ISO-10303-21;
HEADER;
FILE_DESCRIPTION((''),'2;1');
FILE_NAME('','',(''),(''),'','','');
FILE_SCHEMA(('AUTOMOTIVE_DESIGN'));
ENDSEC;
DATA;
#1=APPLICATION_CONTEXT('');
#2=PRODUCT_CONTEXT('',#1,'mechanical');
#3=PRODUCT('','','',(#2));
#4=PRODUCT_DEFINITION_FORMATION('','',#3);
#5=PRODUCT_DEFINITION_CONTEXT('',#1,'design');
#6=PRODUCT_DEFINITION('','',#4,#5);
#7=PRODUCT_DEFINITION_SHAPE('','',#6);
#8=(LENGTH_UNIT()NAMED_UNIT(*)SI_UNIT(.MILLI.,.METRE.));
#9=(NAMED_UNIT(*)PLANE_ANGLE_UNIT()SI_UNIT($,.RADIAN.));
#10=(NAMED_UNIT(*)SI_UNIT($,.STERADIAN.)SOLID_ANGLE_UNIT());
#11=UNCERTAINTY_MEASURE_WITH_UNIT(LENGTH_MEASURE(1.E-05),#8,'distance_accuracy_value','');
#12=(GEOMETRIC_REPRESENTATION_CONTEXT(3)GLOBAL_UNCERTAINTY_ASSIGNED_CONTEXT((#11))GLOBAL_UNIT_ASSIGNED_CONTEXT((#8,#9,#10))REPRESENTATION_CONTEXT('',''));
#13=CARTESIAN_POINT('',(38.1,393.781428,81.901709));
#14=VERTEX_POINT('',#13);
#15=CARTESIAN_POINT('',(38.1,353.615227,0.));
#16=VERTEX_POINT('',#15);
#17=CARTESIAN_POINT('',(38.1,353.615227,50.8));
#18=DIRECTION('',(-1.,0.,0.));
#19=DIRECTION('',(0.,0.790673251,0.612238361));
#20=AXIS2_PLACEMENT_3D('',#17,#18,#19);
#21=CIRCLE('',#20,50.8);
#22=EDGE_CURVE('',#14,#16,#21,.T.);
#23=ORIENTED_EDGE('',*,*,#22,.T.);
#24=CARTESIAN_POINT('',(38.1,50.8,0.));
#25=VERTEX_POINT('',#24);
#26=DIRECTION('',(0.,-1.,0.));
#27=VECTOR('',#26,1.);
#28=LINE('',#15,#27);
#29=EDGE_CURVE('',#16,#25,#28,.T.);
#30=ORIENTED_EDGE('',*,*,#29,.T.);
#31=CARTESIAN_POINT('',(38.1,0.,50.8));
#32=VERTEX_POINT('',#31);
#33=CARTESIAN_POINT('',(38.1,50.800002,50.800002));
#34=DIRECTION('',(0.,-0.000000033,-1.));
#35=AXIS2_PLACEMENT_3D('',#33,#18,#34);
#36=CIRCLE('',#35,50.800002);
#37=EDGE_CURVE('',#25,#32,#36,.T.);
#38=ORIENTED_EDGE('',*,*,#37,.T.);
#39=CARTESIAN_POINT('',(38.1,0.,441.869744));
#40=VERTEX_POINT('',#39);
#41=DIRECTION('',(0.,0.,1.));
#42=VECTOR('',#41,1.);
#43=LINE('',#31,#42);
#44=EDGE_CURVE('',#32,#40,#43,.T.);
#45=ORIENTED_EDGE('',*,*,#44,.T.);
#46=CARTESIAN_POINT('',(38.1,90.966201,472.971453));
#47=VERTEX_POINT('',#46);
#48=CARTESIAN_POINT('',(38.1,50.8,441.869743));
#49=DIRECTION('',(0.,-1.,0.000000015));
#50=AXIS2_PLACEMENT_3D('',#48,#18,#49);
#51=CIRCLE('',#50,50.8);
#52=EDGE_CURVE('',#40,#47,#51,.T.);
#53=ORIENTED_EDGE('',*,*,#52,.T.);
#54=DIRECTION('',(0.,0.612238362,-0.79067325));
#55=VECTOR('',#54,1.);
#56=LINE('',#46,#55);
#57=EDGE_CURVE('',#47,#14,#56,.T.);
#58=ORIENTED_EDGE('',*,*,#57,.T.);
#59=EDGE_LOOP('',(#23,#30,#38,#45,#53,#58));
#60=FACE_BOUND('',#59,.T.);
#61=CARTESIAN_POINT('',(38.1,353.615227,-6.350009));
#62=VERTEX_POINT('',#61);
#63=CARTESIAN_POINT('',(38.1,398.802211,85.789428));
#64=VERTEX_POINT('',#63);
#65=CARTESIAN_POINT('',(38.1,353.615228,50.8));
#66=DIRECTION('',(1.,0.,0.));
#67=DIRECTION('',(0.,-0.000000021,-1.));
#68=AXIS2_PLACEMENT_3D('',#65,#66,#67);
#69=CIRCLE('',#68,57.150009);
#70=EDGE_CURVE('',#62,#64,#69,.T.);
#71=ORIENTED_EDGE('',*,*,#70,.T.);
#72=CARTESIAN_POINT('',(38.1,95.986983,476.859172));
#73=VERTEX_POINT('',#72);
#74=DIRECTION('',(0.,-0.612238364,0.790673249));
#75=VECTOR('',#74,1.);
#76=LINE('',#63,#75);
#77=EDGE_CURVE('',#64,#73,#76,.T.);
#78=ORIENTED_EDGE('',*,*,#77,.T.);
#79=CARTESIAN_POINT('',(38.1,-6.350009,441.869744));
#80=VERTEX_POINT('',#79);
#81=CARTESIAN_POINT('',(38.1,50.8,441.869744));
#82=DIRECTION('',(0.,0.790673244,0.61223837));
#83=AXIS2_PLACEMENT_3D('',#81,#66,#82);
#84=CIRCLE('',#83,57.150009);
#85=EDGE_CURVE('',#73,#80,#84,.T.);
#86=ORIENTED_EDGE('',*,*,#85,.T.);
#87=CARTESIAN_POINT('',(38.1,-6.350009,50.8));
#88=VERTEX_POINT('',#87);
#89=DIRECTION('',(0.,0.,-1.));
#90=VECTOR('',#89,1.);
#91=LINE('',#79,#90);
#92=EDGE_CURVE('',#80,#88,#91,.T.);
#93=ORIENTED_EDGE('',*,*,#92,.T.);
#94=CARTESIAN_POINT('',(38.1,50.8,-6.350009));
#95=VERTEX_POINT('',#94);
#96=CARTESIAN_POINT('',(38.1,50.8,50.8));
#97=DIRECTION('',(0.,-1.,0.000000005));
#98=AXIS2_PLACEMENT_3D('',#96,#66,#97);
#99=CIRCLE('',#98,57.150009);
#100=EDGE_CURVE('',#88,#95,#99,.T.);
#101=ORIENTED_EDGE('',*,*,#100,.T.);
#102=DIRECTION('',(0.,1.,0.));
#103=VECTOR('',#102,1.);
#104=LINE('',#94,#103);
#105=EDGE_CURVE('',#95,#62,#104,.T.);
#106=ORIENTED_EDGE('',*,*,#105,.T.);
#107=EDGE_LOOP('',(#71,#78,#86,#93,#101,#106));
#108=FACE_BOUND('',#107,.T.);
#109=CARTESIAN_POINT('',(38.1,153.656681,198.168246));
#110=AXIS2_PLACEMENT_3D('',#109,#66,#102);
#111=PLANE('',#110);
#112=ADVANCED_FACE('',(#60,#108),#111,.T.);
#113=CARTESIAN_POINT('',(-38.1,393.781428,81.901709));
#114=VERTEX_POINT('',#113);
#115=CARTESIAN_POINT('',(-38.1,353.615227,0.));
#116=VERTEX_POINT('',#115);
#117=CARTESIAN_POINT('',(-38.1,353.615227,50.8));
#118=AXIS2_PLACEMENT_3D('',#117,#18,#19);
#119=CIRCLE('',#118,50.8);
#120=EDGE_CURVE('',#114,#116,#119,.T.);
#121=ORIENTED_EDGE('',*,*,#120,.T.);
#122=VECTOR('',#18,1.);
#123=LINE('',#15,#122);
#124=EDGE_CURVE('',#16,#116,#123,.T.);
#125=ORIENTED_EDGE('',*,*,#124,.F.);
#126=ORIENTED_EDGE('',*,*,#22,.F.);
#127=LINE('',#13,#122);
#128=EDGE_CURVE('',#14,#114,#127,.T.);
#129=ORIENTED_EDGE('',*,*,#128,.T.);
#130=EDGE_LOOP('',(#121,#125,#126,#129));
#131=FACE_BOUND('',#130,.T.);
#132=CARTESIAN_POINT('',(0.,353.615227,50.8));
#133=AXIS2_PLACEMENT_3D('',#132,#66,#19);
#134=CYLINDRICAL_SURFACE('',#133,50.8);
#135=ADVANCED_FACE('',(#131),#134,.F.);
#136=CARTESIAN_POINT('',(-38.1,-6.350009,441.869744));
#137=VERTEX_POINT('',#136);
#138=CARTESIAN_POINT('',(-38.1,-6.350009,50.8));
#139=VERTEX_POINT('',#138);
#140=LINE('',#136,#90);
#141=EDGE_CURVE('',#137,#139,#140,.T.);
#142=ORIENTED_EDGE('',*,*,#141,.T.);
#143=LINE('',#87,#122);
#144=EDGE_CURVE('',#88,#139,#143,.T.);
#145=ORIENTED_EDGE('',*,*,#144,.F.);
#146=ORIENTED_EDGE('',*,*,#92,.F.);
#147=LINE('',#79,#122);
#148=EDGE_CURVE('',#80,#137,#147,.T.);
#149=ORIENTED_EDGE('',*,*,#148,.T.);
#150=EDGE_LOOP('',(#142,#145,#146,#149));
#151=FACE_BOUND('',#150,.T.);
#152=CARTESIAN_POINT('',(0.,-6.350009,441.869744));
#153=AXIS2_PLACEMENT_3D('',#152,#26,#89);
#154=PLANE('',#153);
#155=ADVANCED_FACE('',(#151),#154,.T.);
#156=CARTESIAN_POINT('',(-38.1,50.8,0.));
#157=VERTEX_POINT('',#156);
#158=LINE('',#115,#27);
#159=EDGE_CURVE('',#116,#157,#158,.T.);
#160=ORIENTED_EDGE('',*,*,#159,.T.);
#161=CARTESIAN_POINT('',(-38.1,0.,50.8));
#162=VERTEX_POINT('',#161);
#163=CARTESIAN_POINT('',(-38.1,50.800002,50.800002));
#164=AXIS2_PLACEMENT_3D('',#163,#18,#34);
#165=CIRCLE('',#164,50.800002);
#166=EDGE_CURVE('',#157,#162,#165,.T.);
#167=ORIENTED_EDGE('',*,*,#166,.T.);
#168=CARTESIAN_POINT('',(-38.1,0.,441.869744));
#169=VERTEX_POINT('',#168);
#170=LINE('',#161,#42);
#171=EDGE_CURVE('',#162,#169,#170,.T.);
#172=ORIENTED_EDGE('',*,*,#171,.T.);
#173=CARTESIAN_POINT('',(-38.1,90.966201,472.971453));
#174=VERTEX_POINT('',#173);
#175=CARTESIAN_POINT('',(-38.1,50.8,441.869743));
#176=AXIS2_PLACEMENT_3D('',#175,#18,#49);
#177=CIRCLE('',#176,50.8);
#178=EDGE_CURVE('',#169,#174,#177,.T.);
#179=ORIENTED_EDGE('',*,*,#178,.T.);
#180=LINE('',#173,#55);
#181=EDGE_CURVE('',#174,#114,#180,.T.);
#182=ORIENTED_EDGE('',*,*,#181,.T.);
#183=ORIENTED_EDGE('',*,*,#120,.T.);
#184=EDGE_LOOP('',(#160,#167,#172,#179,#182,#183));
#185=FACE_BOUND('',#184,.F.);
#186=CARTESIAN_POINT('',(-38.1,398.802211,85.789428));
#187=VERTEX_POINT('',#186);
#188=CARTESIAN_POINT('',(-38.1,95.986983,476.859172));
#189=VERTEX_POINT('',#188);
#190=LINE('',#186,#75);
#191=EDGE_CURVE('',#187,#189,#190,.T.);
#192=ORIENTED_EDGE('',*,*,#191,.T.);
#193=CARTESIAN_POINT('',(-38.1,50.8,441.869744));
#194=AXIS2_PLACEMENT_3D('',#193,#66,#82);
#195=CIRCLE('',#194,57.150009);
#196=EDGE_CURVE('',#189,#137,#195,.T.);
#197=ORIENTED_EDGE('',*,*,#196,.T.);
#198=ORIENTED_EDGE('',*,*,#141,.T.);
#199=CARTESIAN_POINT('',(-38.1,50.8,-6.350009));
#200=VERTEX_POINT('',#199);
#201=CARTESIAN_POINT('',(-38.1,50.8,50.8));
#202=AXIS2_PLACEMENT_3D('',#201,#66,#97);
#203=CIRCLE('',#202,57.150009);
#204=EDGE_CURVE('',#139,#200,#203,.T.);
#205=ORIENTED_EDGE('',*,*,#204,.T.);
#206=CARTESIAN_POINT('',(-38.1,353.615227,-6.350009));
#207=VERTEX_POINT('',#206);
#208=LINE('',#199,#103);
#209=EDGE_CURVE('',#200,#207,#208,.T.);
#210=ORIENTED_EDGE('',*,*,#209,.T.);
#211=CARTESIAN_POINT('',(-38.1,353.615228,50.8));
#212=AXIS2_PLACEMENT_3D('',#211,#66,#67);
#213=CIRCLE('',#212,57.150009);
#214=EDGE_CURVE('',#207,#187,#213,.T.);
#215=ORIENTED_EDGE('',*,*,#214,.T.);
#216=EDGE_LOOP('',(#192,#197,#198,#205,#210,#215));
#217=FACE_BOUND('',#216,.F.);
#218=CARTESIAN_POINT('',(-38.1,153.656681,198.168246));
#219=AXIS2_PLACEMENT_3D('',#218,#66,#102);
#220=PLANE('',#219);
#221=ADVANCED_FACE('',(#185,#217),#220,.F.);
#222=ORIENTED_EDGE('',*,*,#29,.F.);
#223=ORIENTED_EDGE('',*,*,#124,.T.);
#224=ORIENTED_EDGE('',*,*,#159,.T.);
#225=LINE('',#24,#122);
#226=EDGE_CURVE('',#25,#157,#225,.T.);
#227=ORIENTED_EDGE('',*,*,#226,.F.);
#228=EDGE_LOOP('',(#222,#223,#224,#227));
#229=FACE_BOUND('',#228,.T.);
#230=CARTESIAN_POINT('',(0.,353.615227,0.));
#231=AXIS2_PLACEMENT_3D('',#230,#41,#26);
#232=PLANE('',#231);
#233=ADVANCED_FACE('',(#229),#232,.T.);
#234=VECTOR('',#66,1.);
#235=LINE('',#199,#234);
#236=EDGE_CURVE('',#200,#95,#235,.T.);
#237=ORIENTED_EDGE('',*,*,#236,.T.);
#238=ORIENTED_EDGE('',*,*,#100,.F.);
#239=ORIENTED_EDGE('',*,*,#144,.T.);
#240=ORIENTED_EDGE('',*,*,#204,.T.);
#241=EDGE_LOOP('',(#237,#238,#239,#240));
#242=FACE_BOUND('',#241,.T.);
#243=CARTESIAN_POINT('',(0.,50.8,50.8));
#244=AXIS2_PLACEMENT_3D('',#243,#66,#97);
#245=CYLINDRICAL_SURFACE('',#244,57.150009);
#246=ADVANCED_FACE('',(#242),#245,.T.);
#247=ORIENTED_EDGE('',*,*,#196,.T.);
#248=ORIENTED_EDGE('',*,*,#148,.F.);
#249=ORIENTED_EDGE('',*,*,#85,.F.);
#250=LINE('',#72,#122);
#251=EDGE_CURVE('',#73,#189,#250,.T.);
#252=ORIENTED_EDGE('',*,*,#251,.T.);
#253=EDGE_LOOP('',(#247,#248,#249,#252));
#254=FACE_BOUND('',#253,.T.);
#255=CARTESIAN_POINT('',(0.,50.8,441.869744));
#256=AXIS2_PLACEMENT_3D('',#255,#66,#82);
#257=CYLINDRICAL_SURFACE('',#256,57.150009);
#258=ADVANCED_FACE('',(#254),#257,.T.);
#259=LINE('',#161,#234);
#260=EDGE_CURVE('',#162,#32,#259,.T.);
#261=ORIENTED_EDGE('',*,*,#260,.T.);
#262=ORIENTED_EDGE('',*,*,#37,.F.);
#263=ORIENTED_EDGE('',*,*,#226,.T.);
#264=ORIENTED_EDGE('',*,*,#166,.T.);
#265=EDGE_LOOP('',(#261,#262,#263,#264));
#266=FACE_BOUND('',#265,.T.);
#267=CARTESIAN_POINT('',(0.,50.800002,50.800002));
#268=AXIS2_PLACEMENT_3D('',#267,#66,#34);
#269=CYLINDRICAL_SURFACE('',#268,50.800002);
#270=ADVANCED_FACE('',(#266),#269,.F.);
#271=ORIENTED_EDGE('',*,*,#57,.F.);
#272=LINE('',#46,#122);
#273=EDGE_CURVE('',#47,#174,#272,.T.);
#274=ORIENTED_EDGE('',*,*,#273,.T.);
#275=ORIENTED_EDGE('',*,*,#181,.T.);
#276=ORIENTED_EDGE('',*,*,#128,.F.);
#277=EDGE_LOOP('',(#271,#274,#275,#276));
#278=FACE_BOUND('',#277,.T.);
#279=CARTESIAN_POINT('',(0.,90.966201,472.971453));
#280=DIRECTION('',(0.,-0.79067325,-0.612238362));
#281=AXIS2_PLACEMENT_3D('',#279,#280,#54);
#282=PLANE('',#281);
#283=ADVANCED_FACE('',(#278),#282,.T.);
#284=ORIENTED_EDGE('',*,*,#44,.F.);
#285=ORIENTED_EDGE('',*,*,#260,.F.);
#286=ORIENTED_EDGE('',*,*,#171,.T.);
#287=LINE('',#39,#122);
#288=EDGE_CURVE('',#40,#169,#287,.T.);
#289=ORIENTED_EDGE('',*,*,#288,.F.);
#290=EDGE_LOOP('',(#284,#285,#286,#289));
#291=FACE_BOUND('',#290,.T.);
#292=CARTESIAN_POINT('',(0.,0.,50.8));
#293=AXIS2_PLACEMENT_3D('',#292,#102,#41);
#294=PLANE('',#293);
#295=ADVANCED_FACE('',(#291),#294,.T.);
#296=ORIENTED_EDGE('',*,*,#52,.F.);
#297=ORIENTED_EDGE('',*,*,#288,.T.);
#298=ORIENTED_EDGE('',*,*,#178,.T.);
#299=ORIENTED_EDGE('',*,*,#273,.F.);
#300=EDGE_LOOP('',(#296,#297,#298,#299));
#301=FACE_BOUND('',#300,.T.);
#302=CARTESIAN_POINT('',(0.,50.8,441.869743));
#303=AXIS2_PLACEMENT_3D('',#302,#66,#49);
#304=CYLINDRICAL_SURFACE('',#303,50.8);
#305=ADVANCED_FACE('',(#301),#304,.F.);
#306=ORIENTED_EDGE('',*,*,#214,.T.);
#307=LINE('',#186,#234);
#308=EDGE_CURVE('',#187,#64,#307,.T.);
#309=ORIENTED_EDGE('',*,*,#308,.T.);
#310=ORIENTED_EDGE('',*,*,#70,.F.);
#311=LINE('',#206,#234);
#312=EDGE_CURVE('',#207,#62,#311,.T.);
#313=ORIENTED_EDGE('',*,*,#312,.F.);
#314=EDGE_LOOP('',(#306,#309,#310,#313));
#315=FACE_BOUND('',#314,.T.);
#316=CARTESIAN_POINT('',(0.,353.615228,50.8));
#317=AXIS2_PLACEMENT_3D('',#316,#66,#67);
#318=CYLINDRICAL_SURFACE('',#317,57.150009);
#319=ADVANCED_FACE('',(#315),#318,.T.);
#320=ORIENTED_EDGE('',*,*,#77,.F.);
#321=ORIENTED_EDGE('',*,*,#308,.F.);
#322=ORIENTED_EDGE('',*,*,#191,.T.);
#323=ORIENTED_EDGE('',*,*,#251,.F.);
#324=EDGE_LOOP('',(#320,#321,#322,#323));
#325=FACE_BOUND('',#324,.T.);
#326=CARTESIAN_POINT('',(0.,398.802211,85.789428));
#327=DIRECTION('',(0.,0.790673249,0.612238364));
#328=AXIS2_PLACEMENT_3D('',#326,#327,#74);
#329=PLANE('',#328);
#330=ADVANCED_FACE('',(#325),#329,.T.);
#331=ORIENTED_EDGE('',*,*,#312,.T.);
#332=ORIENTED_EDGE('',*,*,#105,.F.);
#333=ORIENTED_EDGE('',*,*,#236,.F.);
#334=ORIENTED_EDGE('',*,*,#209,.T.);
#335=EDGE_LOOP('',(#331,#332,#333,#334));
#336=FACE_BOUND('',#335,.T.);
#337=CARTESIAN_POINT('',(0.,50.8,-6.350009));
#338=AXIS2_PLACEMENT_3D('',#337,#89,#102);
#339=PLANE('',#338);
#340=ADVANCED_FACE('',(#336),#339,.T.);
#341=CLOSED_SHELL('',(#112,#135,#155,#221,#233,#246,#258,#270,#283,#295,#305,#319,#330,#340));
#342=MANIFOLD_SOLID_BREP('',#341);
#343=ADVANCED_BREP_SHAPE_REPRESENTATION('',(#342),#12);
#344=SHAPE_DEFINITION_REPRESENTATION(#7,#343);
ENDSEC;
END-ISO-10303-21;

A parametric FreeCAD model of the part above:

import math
import FreeCAD as App
import Part
import Sketcher
Q = App.Units.Quantity

doc = App.newDocument("Part")
body = doc.addObject("PartDesign::Body", "Body")

# Sketch on YZ plane
sketch1 = body.newObject("Sketcher::SketchObject", "Sketch")
sketch1.AttachmentSupport = (doc.getObject("YZ_Plane"), [""])
sketch1.MapMode = "FlatFace"
sketch1.addGeometry([
    Part.ArcOfCircle(Part.Circle(App.Vector(50.8, 50.8, 0), App.Vector(0, 0, 1), 57.150009), math.radians(180), math.radians(270)),  # 0
    Part.LineSegment(App.Vector(50.8, -6.350009, 0), App.Vector(353.615227, -6.350009, 0)),  # 1
    Part.ArcOfCircle(Part.Circle(App.Vector(353.615228, 50.8, 0), App.Vector(0, 0, 1), 57.150009), math.radians(-90.000001), math.radians(37.751528)),  # 2
    Part.LineSegment(App.Vector(398.802211, 85.789428, 0), App.Vector(95.986983, 476.859172, 0)),  # 3
    Part.ArcOfCircle(Part.Circle(App.Vector(50.8, 441.869744, 0), App.Vector(0, 0, 1), 57.150009), math.radians(37.751528), math.radians(180)),  # 4
    Part.LineSegment(App.Vector(-6.350009, 441.869744, 0), App.Vector(-6.350009, 50.8, 0)),  # 5
    Part.ArcOfCircle(Part.Circle(App.Vector(50.800002, 50.800002, 0), App.Vector(0, 0, 1), 50.800002), math.radians(-179.999998), math.radians(-90.000002)),  # 6
    Part.LineSegment(App.Vector(0, 50.8, 0), App.Vector(0, 441.869744, 0)),  # 7
    Part.ArcOfCircle(Part.Circle(App.Vector(50.8, 441.869743, 0), App.Vector(0, 0, 1), 50.8), math.radians(37.751529), math.radians(179.999999)),  # 8
    Part.LineSegment(App.Vector(90.966201, 472.971453, 0), App.Vector(393.781428, 81.901709, 0)),  # 9
    Part.ArcOfCircle(Part.Circle(App.Vector(353.615227, 50.8, 0), App.Vector(0, 0, 1), 50.8), math.radians(-90), math.radians(37.751528)),  # 10
    Part.LineSegment(App.Vector(353.615227, 0, 0), App.Vector(50.8, 0, 0)),  # 11
], False)
sketch1.addConstraint([
    Sketcher.Constraint("Coincident", 0, 2, 1, 1),
    Sketcher.Constraint("Coincident", 1, 2, 2, 1),
    Sketcher.Constraint("Coincident", 2, 2, 3, 1),
    Sketcher.Constraint("Coincident", 3, 2, 4, 1),
    Sketcher.Constraint("Coincident", 4, 2, 5, 1),
    Sketcher.Constraint("Coincident", 5, 2, 0, 1),
    Sketcher.Constraint("Coincident", 6, 1, 7, 1),
    Sketcher.Constraint("Coincident", 7, 2, 8, 2),
    Sketcher.Constraint("Coincident", 8, 1, 9, 1),
    Sketcher.Constraint("Coincident", 9, 2, 10, 2),
    Sketcher.Constraint("Coincident", 10, 1, 11, 1),
    Sketcher.Constraint("Coincident", 11, 2, 6, 2),
    Sketcher.Constraint("Horizontal", 1),
    Sketcher.Constraint("Vertical", 5),
    Sketcher.Constraint("Vertical", 7),
    Sketcher.Constraint("Horizontal", 11),
    Sketcher.Constraint("Coincident", 6, 3, 0, 3),
    Sketcher.Constraint("Coincident", 8, 3, 4, 3),
    Sketcher.Constraint("Coincident", 10, 3, 2, 3),
    Sketcher.Constraint("PointOnObject", 6, 1, -2),
    Sketcher.Constraint("PointOnObject", 10, 1, -1),
    Sketcher.Constraint("Radius", 6, Q("2.0000001 in")),
    Sketcher.Constraint("Radius", 8, Q("2 in")),
    Sketcher.Constraint("Radius", 10, Q("2 in")),
    Sketcher.Constraint("DistanceX", -1, 1, 0, 2, Q("2 in")),
    Sketcher.Constraint("DistanceY", -1, 1, 5, 2, Q("2 in")),
    Sketcher.Constraint("DistanceY", -1, 1, 6, 1, Q("2 in")),
    Sketcher.Constraint("DistanceX", -1, 1, 11, 2, Q("2 in")),
    Sketcher.Constraint("Radius", 0, 57.150009),
    Sketcher.Constraint("DistanceX", -1, 1, 8, 1, 90.966201),
    Sketcher.Constraint("DistanceX", 2, 3, 9, 2, 40.1662),
    Sketcher.Constraint("DistanceX", 1, 2, 9, 2, 40.166201),
    Sketcher.Constraint("DistanceX", 10, 1, 9, 2, 40.166201),
    Sketcher.Constraint("DistanceX", 1, 1, 1, 2, 302.815227),
    Sketcher.Constraint("DistanceY", 5, 2, 5, 1, 391.069744),
    Sketcher.Constraint("DistanceY", 7, 1, 7, 2, 391.069744),
    Sketcher.Constraint("DistanceX", -1, 1, 2, 2, 398.802211),
    Sketcher.Constraint("DistanceY", -1, 1, 3, 2, 476.859172),
    Sketcher.Constraint("DistanceY", 6, 3, 8, 3, 391.069742),
])
pad1 = body.newObject("PartDesign::Pad", "Pad")
pad1.Profile = sketch1
pad1.Length = Q("3 in")
pad1.Midplane = True

doc.recompute()
